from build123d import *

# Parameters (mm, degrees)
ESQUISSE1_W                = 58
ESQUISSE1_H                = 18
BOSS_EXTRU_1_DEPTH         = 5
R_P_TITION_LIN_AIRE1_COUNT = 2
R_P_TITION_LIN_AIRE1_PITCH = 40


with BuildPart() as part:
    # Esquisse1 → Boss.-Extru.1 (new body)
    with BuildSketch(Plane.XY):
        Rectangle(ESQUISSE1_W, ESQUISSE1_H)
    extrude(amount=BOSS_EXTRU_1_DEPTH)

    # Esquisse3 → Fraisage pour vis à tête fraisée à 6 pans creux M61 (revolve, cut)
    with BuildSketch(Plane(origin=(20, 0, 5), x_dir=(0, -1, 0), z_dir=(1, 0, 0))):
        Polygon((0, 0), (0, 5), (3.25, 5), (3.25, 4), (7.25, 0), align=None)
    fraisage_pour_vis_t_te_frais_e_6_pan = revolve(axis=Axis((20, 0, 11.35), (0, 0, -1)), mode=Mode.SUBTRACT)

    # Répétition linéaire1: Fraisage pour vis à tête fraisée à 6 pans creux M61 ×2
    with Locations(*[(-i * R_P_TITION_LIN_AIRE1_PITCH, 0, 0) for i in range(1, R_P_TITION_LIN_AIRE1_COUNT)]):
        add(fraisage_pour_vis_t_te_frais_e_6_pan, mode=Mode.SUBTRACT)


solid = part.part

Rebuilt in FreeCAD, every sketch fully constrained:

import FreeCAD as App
import Part
import Sketcher

V = App.Vector
Q = App.Units.Quantity

doc = App.newDocument("Part")
body = doc.addObject("PartDesign::Body", "Body")

# Sketch on XY plane
sketch1 = doc.addObject("Sketcher::SketchObject", "Sketch")
body.addObject(sketch1)
sketch1.AttachmentSupport = (doc.XY_Plane, [""])
sketch1.MapMode = "FlatFace"
sketch1.addGeometry([
    Part.LineSegment(V(-29, 9, 0), V(-29, -9, 0)),
    Part.LineSegment(V(-29, -9, 0), V(29, -9, 0)),
    Part.LineSegment(V(29, -9, 0), V(29, 9, 0)),
    Part.LineSegment(V(29, 9, 0), V(-29, 9, 0)),
], False)
sketch1.addConstraint([
    Sketcher.Constraint("Coincident", 0, 2, 1, 1),
    Sketcher.Constraint("Coincident", 1, 2, 2, 1),
    Sketcher.Constraint("Coincident", 2, 2, 3, 1),
    Sketcher.Constraint("Coincident", 3, 2, 0, 1),
    Sketcher.Constraint("Vertical", 0),
    Sketcher.Constraint("Horizontal", 1),
    Sketcher.Constraint("Vertical", 2),
    Sketcher.Constraint("Horizontal", 3),
    Sketcher.Constraint("Symmetric", 0, 2, 2, 2, -1, 1),
    Sketcher.Constraint("DistanceX", 1, 1, 1, 2, Q("58 mm")),
    Sketcher.Constraint("DistanceY", 0, 2, 0, 1, Q("18 mm")),
])
pad1 = doc.addObject("PartDesign::Pad", "Pad")
body.addObject(pad1)
pad1.Profile = sketch1
pad1.Length = 5

# Sketch on YZ plane
sketch2 = doc.addObject("Sketcher::SketchObject", "Sketch001")
body.addObject(sketch2)
sketch2.AttachmentSupport = (doc.YZ_Plane, [""])
sketch2.MapMode = "FlatFace"
sketch2.AttachmentOffset = App.Placement(V(0, 0, 20), App.Rotation())
sketch2.addGeometry([
    Part.LineSegment(V(0, 0, 0), V(0, 5, 0)),  # 0
    Part.LineSegment(V(0, 5, 0), V(-7.2, 5, 0)),  # 1
    Part.LineSegment(V(-7.2, 5, 0), V(-3.2, 1, 0)),  # 2
    Part.LineSegment(V(-3.2, 1, 0), V(-3.2, 0, 0)),  # 3
    Part.LineSegment(V(-3.2, 0, 0), V(0, 0, 0)),  # 4
], False)
sketch2.addConstraint([
    Sketcher.Constraint("Coincident", 0, 2, 1, 1),
    Sketcher.Constraint("Coincident", 1, 2, 2, 1),
    Sketcher.Constraint("Coincident", 2, 2, 3, 1),
    Sketcher.Constraint("Coincident", 3, 2, 4, 1),
    Sketcher.Constraint("Coincident", 4, 2, 0, 1),
    Sketcher.Constraint("Vertical", 0),
    Sketcher.Constraint("Horizontal", 1),
    Sketcher.Constraint("Vertical", 3),
    Sketcher.Constraint("Horizontal", 4),
    Sketcher.Constraint("Coincident", 4, 2, -1, 1),
    Sketcher.Constraint("DistanceY", 0, 1, 0, 2, Q("5 mm")),
    Sketcher.Constraint("DistanceY", 3, 2, 3, 1, Q("1 mm")),
    Sketcher.Constraint("Angle", 2, Q("-45 deg")),
    Sketcher.Constraint("DistanceX", 1, 2, 1, 1, Q("7.25 mm")),
])
groove = doc.addObject("PartDesign::Groove", "Groove")
body.addObject(groove)
groove.Profile = sketch2
groove.ReferenceAxis = (sketch2, ["V_Axis"])
groove.Angle = 360
doc.recompute()

linearpattern = doc.addObject("PartDesign::LinearPattern", "LinearPattern")
body.addObject(linearpattern)
linearpattern.Originals = [groove]
linearpattern.Direction = (doc.X_Axis, [""])
linearpattern.Mode = "offset"
linearpattern.Offset = 40
linearpattern.Occurrences = 2
linearpattern.Reversed = True
body.Tip = linearpattern

doc.recompute()
